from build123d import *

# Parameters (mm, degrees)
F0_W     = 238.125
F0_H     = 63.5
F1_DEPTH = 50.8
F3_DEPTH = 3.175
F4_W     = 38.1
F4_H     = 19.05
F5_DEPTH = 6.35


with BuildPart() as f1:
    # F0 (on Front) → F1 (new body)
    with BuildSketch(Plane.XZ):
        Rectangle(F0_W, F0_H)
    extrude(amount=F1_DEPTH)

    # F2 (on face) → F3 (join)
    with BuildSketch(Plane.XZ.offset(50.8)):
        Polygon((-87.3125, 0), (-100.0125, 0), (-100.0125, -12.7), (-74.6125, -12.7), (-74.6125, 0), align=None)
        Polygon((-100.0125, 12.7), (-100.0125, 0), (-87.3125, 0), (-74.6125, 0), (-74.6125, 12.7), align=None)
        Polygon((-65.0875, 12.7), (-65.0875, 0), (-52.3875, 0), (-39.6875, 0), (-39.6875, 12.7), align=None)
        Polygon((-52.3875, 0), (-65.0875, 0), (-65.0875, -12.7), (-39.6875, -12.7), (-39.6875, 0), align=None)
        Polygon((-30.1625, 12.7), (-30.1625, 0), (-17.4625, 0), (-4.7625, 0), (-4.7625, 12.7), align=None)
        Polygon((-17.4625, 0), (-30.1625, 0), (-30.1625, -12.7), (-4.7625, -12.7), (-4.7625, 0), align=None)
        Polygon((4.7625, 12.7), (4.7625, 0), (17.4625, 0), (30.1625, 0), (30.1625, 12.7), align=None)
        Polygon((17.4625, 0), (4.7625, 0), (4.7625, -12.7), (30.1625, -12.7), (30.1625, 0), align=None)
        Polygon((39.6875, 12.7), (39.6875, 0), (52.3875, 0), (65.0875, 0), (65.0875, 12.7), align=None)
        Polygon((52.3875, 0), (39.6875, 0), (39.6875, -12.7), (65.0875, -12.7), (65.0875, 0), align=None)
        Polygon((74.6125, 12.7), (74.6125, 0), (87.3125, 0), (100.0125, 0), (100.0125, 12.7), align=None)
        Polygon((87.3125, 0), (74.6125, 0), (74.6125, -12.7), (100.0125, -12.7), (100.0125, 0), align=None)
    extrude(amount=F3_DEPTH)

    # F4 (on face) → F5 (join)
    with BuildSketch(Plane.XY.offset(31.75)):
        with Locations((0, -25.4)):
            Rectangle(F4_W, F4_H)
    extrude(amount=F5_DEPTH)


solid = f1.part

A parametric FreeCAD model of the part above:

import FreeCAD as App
import Part
import Sketcher
from FreeCAD import Vector
Q = App.Units.Quantity

doc = App.newDocument("Part")
params = doc.addObject("Spreadsheet::Sheet", "Params")
for row, (alias, value) in enumerate([
    ("sketch1_height", "2.5 in"),
    ("sketch1_width", "9.375 in"),
    ("pad1_length", "2 in"),
    ("sketch2_width", "1 in"),
    ("pad2_length", "0.125 in"),
    ("sketch3_width", "1.5 in"),
    ("sketch3_height", "0.75 in"),
    ("pad3_length", "0.25 in"),
], start=1):
    params.set(f"A{row}", alias)
    params.set(f"B{row}", "=" + value)
    params.setAlias(f"B{row}", alias)

body = doc.addObject("PartDesign::Body", "Body")

# Sketch on XZ plane
sketch1 = doc.addObject("Sketcher::SketchObject", "Sketch")
body.addObject(sketch1)
sketch1.AttachmentSupport = (doc.XZ_Plane, [""])
sketch1.MapMode = "FlatFace"
sketch1.addGeometry(Part.LineSegment(Vector(-119, 32, 0), Vector(-119, -32, 0)), False)
sketch1.addGeometry(Part.LineSegment(Vector(-119, -32, 0), Vector(119, -32, 0)), False)
sketch1.addGeometry(Part.LineSegment(Vector(119, -32, 0), Vector(119, 32, 0)), False)
sketch1.addGeometry(Part.LineSegment(Vector(119, 32, 0), Vector(-119, 32, 0)), False)
sketch1.addConstraint(Sketcher.Constraint("Coincident", 0, 2, 1, 1))
sketch1.addConstraint(Sketcher.Constraint("Coincident", 1, 2, 2, 1))
sketch1.addConstraint(Sketcher.Constraint("Coincident", 2, 2, 3, 1))
sketch1.addConstraint(Sketcher.Constraint("Coincident", 3, 2, 0, 1))
sketch1.addConstraint(Sketcher.Constraint("Vertical", 0))
sketch1.addConstraint(Sketcher.Constraint("Horizontal", 1))
sketch1.addConstraint(Sketcher.Constraint("Vertical", 2))
sketch1.addConstraint(Sketcher.Constraint("Horizontal", 3))
sketch1.addConstraint(Sketcher.Constraint("Symmetric", 0, 2, 2, 2, -1, 1))
sketch1.addConstraint(Sketcher.Constraint("DistanceY", 0, 2, 0, 1, Q("2.5 in")))
sketch1.addConstraint(Sketcher.Constraint("DistanceX", 1, 1, 1, 2, Q("9.375 in")))
sketch1.setExpression("Constraints[9]", "Params.sketch1_height")
sketch1.setExpression("Constraints[10]", "Params.sketch1_width")
pad1 = doc.addObject("PartDesign::Pad", "Pad")
body.addObject(pad1)
pad1.Profile = sketch1
pad1.setExpression("Length", "Params.pad1_length")

# Sketch on XZ plane
sketch2 = doc.addObject("Sketcher::SketchObject", "Sketch001")
body.addObject(sketch2)
sketch2.AttachmentSupport = (doc.XZ_Plane, [""])
sketch2.MapMode = "FlatFace"
sketch2.AttachmentOffset = App.Placement(Vector(0, 0, 2 * 25.4), App.Rotation())
sketch2.addGeometry(Part.LineSegment(Vector(-100, -13, 0), Vector(-75, -13, 0)), False)
sketch2.addGeometry(Part.LineSegment(Vector(-75, -13, 0), Vector(-75, 13, 0)), False)
sketch2.addGeometry(Part.LineSegment(Vector(-75, 13, 0), Vector(-100, 13, 0)), False)
sketch2.addGeometry(Part.LineSegment(Vector(-100, 13, 0), Vector(-100, -13, 0)), False)
sketch2.addGeometry(Part.LineSegment(Vector(-65, 13, 0), Vector(-65, -13, 0)), False)
sketch2.addGeometry(Part.LineSegment(Vector(-65, -13, 0), Vector(-40, -13, 0)), False)
sketch2.addGeometry(Part.LineSegment(Vector(-40, -13, 0), Vector(-40, 13, 0)), False)
sketch2.addGeometry(Part.LineSegment(Vector(-40, 13, 0), Vector(-65, 13, 0)), False)
sketch2.addGeometry(Part.LineSegment(Vector(-30, 13, 0), Vector(-30, -13, 0)), False)
sketch2.addGeometry(Part.LineSegment(Vector(-30, -13, 0), Vector(-5, -13, 0)), False)
sketch2.addGeometry(Part.LineSegment(Vector(-5, -13, 0), Vector(-5, 13, 0)), False)
sketch2.addGeometry(Part.LineSegment(Vector(-5, 13, 0), Vector(-30, 13, 0)), False)
sketch2.addGeometry(Part.LineSegment(Vector(5, 13, 0), Vector(5, -13, 0)), False)
sketch2.addGeometry(Part.LineSegment(Vector(5, -13, 0), Vector(30, -13, 0)), False)
sketch2.addGeometry(Part.LineSegment(Vector(30, -13, 0), Vector(30, 13, 0)), False)
sketch2.addGeometry(Part.LineSegment(Vector(30, 13, 0), Vector(5, 13, 0)), False)
sketch2.addGeometry(Part.LineSegment(Vector(40, 13, 0), Vector(40, -13, 0)), False)
sketch2.addGeometry(Part.LineSegment(Vector(40, -13, 0), Vector(65, -13, 0)), False)
sketch2.addGeometry(Part.LineSegment(Vector(65, -13, 0), Vector(65, 13, 0)), False)
sketch2.addGeometry(Part.LineSegment(Vector(65, 13, 0), Vector(40, 13, 0)), False)
sketch2.addGeometry(Part.LineSegment(Vector(75, 13, 0), Vector(75, -13, 0)), False)
sketch2.addGeometry(Part.LineSegment(Vector(75, -13, 0), Vector(100, -13, 0)), False)
sketch2.addGeometry(Part.LineSegment(Vector(100, -13, 0), Vector(100, 13, 0)), False)
sketch2.addGeometry(Part.LineSegment(Vector(100, 13, 0), Vector(75, 13, 0)), False)
sketch2.addConstraint(Sketcher.Constraint("Coincident", 0, 2, 1, 1))
sketch2.addConstraint(Sketcher.Constraint("Coincident", 1, 2, 2, 1))
sketch2.addConstraint(Sketcher.Constraint("Coincident", 2, 2, 3, 1))
sketch2.addConstraint(Sketcher.Constraint("Coincident", 3, 2, 0, 1))
sketch2.addConstraint(Sketcher.Constraint("Coincident", 4, 2, 5, 1))
sketch2.addConstraint(Sketcher.Constraint("Coincident", 5, 2, 6, 1))
sketch2.addConstraint(Sketcher.Constraint("Coincident", 6, 2, 7, 1))
sketch2.addConstraint(Sketcher.Constraint("Coincident", 7, 2, 4, 1))
sketch2.addConstraint(Sketcher.Constraint("Coincident", 8, 2, 9, 1))
sketch2.addConstraint(Sketcher.Constraint("Coincident", 9, 2, 10, 1))
sketch2.addConstraint(Sketcher.Constraint("Coincident", 10, 2, 11, 1))
sketch2.addConstraint(Sketcher.Constraint("Coincident", 11, 2, 8, 1))
sketch2.addConstraint(Sketcher.Constraint("Coincident", 12, 2, 13, 1))
sketch2.addConstraint(Sketcher.Constraint("Coincident", 13, 2, 14, 1))
sketch2.addConstraint(Sketcher.Constraint("Coincident", 14, 2, 15, 1))
sketch2.addConstraint(Sketcher.Constraint("Coincident", 15, 2, 12, 1))
sketch2.addConstraint(Sketcher.Constraint("Coincident", 16, 2, 17, 1))
sketch2.addConstraint(Sketcher.Constraint("Coincident", 17, 2, 18, 1))
sketch2.addConstraint(Sketcher.Constraint("Coincident", 18, 2, 19, 1))
sketch2.addConstraint(Sketcher.Constraint("Coincident", 19, 2, 16, 1))
sketch2.addConstraint(Sketcher.Constraint("Coincident", 20, 2, 21, 1))
sketch2.addConstraint(Sketcher.Constraint("Coincident", 21, 2, 22, 1))
sketch2.addConstraint(Sketcher.Constraint("Coincident", 22, 2, 23, 1))
sketch2.addConstraint(Sketcher.Constraint("Coincident", 23, 2, 20, 1))
sketch2.addConstraint(Sketcher.Constraint("Horizontal", 0))
sketch2.addConstraint(Sketcher.Constraint("Vertical", 1))
sketch2.addConstraint(Sketcher.Constraint("Horizontal", 2))
sketch2.addConstraint(Sketcher.Constraint("Vertical", 3))
sketch2.addConstraint(Sketcher.Constraint("Vertical", 4))
sketch2.addConstraint(Sketcher.Constraint("Horizontal", 5))
sketch2.addConstraint(Sketcher.Constraint("Vertical", 6))
sketch2.addConstraint(Sketcher.Constraint("Horizontal", 7))
sketch2.addConstraint(Sketcher.Constraint("Vertical", 8))
sketch2.addConstraint(Sketcher.Constraint("Horizontal", 9))
sketch2.addConstraint(Sketcher.Constraint("Vertical", 10))
sketch2.addConstraint(Sketcher.Constraint("Horizontal", 11))
sketch2.addConstraint(Sketcher.Constraint("Vertical", 12))
sketch2.addConstraint(Sketcher.Constraint("Horizontal", 13))
sketch2.addConstraint(Sketcher.Constraint("Vertical", 14))
sketch2.addConstraint(Sketcher.Constraint("Horizontal", 15))
sketch2.addConstraint(Sketcher.Constraint("Vertical", 16))
sketch2.addConstraint(Sketcher.Constraint("Horizontal", 17))
sketch2.addConstraint(Sketcher.Constraint("Vertical", 18))
sketch2.addConstraint(Sketcher.Constraint("Horizontal", 19))
sketch2.addConstraint(Sketcher.Constraint("Vertical", 20))
sketch2.addConstraint(Sketcher.Constraint("Horizontal", 21))
sketch2.addConstraint(Sketcher.Constraint("Vertical", 22))
sketch2.addConstraint(Sketcher.Constraint("Horizontal", 23))
sketch2.addConstraint(Sketcher.Constraint("Symmetric", 10, 2, 12, 2, -1, 1))
sketch2.addConstraint(Sketcher.Constraint("Symmetric", 8, 2, 14, 2, -1, 1))
sketch2.addConstraint(Sketcher.Constraint("Symmetric", 6, 2, 16, 2, -1, 1))
sketch2.addConstraint(Sketcher.Constraint("Symmetric", 4, 2, 18, 2, -1, 1))
sketch2.addConstraint(Sketcher.Constraint("Symmetric", 1, 2, 20, 2, -1, 1))
sketch2.addConstraint(Sketcher.Constraint("Symmetric", 3, 2, 22, 2, -1, 1))
sketch2.addConstraint(Sketcher.Constraint("Horizontal", 3, 2, 4, 2))
sketch2.addConstraint(Sketcher.Constraint("Horizontal", 2, 2, 6, 2))
sketch2.addConstraint(Sketcher.Constraint("Horizontal", 5, 2, 8, 2))
sketch2.addConstraint(Sketcher.Constraint("Horizontal", 7, 2, 10, 2))
sketch2.addConstraint(Sketcher.Constraint("Horizontal", 9, 2, 12, 2))
sketch2.addConstraint(Sketcher.Constraint("Equal", 2, 5))
sketch2.addConstraint(Sketcher.Constraint("Equal", 7, 9))
sketch2.addConstraint(Sketcher.Constraint("Equal", 23, 1))
sketch2.addConstraint(Sketcher.Constraint("DistanceX", 0, 1, 0, 2, Q("1 in")))
sketch2.addConstraint(Sketcher.Constraint("DistanceX", 0, 2, 8, 2, Q("1.75 in")))
sketch2.addConstraint(Sketcher.Constraint("DistanceX", 5, 2, 12, 2, Q("1.75 in")))
sketch2.addConstraint(Sketcher.Constraint("DistanceX", 0, 2, -1, 1, Q("2.9375 in")))
sketch2.setExpression("Constraints[62]", "Params.sketch2_width")
pad2 = doc.addObject("PartDesign::Pad", "Pad001")
body.addObject(pad2)
pad2.Profile = sketch2
pad2.setExpression("Length", "Params.pad2_length")

# Sketch on XY plane
sketch3 = doc.addObject("Sketcher::SketchObject", "Sketch002")
body.addObject(sketch3)
sketch3.AttachmentSupport = (doc.XY_Plane, [""])
sketch3.MapMode = "FlatFace"
sketch3.AttachmentOffset = App.Placement(Vector(0, 0, 1.25 * 25.4), App.Rotation())
sketch3.addGeometry(Part.LineSegment(Vector(-19, -16, 0), Vector(-19, -35, 0)), False)
sketch3.addGeometry(Part.LineSegment(Vector(-19, -35, 0), Vector(19, -35, 0)), False)
sketch3.addGeometry(Part.LineSegment(Vector(19, -35, 0), Vector(19, -16, 0)), False)
sketch3.addGeometry(Part.LineSegment(Vector(19, -16, 0), Vector(-19, -16, 0)), False)
sketch3.addConstraint(Sketcher.Constraint("Coincident", 0, 2, 1, 1))
sketch3.addConstraint(Sketcher.Constraint("Coincident", 1, 2, 2, 1))
sketch3.addConstraint(Sketcher.Constraint("Coincident", 2, 2, 3, 1))
sketch3.addConstraint(Sketcher.Constraint("Coincident", 3, 2, 0, 1))
sketch3.addConstraint(Sketcher.Constraint("Vertical", 0))
sketch3.addConstraint(Sketcher.Constraint("Horizontal", 1))
sketch3.addConstraint(Sketcher.Constraint("Vertical", 2))
sketch3.addConstraint(Sketcher.Constraint("Horizontal", 3))
sketch3.addConstraint(Sketcher.Constraint("DistanceX", 1, 1, 1, 2, Q("1.5 in")))
sketch3.addConstraint(Sketcher.Constraint("DistanceY", 0, 2, 0, 1, Q("0.75 in")))
sketch3.addConstraint(Sketcher.Constraint("DistanceX", 0, 2, -1, 1, Q("0.75 in")))
sketch3.addConstraint(Sketcher.Constraint("DistanceY", 0, 2, -1, 1, Q("1.375 in")))
sketch3.setExpression("Constraints[8]", "Params.sketch3_width")
sketch3.setExpression("Constraints[9]", "Params.sketch3_height")
pad3 = doc.addObject("PartDesign::Pad", "Pad002")
body.addObject(pad3)
pad3.Profile = sketch3
pad3.setExpression("Length", "Params.pad3_length")

doc.recompute()
